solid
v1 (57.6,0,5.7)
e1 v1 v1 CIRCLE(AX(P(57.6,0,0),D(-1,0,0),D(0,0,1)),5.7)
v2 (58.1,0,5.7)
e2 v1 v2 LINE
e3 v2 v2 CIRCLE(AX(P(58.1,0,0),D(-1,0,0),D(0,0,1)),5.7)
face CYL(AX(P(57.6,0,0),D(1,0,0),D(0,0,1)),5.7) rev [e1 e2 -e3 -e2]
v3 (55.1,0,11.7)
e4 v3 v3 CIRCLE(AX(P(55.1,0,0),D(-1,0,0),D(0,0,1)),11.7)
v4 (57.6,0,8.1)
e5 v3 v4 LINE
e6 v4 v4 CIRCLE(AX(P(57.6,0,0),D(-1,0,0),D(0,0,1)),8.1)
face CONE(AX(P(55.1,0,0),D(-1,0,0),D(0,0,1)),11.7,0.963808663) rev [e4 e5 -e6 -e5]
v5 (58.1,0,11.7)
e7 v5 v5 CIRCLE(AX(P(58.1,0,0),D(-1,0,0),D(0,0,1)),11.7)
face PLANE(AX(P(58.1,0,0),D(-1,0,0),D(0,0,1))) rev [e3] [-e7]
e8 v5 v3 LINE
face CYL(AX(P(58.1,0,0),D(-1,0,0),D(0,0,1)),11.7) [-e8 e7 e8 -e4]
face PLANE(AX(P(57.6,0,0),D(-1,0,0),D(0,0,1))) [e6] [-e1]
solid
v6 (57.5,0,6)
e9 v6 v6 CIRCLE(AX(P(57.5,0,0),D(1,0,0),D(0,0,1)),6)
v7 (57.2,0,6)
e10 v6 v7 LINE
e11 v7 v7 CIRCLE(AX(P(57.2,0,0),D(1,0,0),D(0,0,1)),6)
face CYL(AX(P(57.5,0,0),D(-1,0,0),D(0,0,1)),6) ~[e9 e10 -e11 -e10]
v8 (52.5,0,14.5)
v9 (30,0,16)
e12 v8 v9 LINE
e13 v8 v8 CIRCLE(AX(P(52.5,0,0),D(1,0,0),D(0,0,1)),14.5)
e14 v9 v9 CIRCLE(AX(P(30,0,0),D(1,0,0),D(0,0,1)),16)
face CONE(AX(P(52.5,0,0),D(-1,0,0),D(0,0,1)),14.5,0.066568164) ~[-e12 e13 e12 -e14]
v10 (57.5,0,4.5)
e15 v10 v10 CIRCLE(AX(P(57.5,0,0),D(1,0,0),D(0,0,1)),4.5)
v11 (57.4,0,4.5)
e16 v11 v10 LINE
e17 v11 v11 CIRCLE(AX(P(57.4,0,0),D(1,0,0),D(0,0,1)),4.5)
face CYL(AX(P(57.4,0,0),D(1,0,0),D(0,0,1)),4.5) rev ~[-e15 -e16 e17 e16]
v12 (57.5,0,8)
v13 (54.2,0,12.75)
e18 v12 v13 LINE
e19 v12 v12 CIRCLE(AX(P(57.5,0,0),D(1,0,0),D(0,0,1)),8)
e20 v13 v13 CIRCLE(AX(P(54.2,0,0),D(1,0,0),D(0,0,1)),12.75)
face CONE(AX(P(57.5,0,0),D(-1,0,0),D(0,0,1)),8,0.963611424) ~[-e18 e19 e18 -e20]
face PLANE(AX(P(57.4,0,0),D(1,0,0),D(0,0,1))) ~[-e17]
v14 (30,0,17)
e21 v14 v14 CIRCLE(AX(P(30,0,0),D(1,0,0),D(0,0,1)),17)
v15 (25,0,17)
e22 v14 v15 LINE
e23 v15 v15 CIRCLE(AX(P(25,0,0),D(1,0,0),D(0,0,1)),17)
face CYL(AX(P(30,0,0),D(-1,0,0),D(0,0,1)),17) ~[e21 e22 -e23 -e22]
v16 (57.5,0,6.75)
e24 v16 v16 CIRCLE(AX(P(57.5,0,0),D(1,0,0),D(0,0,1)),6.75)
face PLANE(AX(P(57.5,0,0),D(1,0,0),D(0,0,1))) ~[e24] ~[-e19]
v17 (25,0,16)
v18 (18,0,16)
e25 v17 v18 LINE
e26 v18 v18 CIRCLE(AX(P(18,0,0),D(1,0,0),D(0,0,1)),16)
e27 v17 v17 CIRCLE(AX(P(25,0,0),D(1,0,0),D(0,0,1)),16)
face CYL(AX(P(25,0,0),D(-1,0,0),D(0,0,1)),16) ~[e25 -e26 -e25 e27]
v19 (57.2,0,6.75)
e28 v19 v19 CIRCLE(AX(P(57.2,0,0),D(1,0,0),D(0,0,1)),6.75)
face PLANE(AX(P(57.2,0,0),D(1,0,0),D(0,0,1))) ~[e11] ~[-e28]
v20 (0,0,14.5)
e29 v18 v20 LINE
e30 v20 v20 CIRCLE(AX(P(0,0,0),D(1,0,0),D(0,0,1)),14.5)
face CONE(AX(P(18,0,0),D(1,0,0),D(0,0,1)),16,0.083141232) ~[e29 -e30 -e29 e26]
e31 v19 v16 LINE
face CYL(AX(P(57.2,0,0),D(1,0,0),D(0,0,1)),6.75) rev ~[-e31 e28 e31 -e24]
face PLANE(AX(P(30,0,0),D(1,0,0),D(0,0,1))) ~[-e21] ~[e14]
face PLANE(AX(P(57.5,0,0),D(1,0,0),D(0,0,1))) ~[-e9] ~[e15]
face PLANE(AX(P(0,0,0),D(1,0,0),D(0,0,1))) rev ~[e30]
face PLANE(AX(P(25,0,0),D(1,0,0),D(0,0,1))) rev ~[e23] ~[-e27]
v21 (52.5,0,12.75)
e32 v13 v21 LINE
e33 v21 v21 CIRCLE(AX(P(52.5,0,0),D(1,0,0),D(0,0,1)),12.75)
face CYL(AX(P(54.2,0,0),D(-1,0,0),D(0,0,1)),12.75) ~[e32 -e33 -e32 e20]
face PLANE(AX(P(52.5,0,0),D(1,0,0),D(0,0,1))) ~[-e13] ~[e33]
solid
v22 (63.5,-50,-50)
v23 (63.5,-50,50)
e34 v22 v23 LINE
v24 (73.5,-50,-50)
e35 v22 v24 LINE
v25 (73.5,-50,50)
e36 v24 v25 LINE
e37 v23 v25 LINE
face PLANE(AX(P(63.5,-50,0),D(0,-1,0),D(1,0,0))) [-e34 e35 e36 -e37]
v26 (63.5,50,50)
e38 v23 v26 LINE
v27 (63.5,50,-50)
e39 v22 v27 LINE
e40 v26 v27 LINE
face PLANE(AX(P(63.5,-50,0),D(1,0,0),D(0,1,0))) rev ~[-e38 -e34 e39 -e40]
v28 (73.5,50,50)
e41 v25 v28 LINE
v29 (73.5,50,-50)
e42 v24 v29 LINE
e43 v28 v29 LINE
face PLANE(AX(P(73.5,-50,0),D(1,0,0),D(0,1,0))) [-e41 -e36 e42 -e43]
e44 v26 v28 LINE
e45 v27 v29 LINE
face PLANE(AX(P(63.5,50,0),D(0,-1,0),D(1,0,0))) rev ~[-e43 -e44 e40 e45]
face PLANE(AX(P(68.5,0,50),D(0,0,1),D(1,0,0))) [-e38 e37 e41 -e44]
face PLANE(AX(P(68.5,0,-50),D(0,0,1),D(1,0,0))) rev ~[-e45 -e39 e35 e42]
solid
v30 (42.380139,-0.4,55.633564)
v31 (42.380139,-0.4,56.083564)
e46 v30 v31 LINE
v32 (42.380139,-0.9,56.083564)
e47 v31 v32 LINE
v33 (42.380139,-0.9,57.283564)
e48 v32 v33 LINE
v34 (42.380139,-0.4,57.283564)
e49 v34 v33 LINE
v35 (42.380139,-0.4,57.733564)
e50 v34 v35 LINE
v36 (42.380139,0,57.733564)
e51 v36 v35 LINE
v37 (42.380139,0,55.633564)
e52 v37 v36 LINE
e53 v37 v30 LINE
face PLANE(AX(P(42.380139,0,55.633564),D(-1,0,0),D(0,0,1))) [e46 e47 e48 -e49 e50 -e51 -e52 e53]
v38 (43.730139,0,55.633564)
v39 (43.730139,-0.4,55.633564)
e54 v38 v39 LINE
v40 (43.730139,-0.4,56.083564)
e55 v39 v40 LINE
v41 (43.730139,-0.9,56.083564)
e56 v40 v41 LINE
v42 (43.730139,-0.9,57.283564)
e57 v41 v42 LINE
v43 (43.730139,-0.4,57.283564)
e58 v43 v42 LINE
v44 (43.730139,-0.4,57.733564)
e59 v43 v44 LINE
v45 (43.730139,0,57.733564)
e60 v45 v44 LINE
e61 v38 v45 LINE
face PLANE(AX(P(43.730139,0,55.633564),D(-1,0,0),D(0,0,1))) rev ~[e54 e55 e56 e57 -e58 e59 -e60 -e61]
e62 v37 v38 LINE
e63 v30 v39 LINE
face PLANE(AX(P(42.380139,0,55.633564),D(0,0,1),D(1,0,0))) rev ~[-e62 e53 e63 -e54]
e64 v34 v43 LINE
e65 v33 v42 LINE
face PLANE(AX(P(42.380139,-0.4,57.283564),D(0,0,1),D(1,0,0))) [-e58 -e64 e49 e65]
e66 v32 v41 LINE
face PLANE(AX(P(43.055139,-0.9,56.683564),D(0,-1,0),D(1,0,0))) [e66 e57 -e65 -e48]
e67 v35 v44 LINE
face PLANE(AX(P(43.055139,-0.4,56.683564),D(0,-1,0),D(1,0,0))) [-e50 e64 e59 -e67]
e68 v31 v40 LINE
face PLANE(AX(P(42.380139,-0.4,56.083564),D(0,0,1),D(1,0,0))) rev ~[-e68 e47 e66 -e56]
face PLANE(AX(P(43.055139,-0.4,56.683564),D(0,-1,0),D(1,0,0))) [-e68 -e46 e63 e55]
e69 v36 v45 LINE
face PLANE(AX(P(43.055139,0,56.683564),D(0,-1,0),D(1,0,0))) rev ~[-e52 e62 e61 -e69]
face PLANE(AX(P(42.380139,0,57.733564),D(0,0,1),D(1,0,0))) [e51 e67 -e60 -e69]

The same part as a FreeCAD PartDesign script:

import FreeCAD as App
import Part
import Sketcher

V = App.Vector
Q = App.Units.Quantity


def add_polygon(sketch, points):
    """Adds a closed chain of lines whose ends are joined by coincident constraints."""
    first, n = sketch.GeometryCount, len(points)
    for a, b in zip(points, points[1:] + points[:1]):
        sketch.addGeometry(Part.LineSegment(App.Vector(*a, 0), App.Vector(*b, 0)), False)
    for i in range(n):
        sketch.addConstraint(Sketcher.Constraint("Coincident", first + i, 2, first + (i + 1) % n, 1))

doc = App.newDocument("Part")
body = doc.addObject("PartDesign::Body", "Body")

sketch1 = body.newObject("Sketcher::SketchObject", "Sketch")
sketch1.AttachmentSupport = (doc.getObject("XZ_Plane"), [""])
sketch1.MapMode = "FlatFace"
add_polygon(sketch1, [(0, 14.5), (0, 0), (57.4, 0), (57.4, 4.5), (57.5, 4.5), (57.5, 6), (57.2, 6), (57.2, 6.75), (57.5, 6.75), (57.5, 8), (54.2, 12.75), (52.5, 12.75), (52.5, 14.5), (30, 16), (30, 17), (25, 17), (25, 16), (18, 16)])
sketch1.addConstraint([
    Sketcher.Constraint("Vertical", 0),
    Sketcher.Constraint("Horizontal", 1),
    Sketcher.Constraint("Vertical", 2),
    Sketcher.Constraint("Horizontal", 3),
    Sketcher.Constraint("Vertical", 4),
    Sketcher.Constraint("Horizontal", 5),
    Sketcher.Constraint("Vertical", 6),
    Sketcher.Constraint("Horizontal", 7),
    Sketcher.Constraint("Vertical", 8),
    Sketcher.Constraint("Horizontal", 10),
    Sketcher.Constraint("Vertical", 11),
    Sketcher.Constraint("Vertical", 13),
    Sketcher.Constraint("Horizontal", 14),
    Sketcher.Constraint("Vertical", 15),
    Sketcher.Constraint("Horizontal", 16),
    Sketcher.Constraint("Coincident", 0, 2, -1, 1),
    Sketcher.Constraint("Horizontal", 12, 2, 15, 2),
    Sketcher.Constraint("Horizontal", 11, 2, 17, 2),
    Sketcher.Constraint("Vertical", 4, 2, 7, 2),
    Sketcher.Constraint("DistanceX", 14, 2, 14, 1, Q("5 mm")),
    Sketcher.Constraint("DistanceX", 16, 2, 16, 1, Q("7 mm")),
    Sketcher.Constraint("DistanceY", 13, 1, 13, 2, Q("1 mm")),
    Sketcher.Constraint("DistanceX", 1, 1, 1, 2, Q("57.4 mm")),
    Sketcher.Constraint("DistanceX", 3, 1, 3, 2, Q("0.1 mm")),
    Sketcher.Constraint("DistanceX", 5, 2, 5, 1, Q("0.3 mm")),
    Sketcher.Constraint("DistanceX", 10, 2, 10, 1, Q("1.7 mm")),
    Sketcher.Constraint("DistanceY", 0, 2, 0, 1, Q("14.5 mm")),
    Sketcher.Constraint("DistanceY", 2, 1, 2, 2, Q("4.5 mm")),
    Sketcher.Constraint("DistanceY", 4, 1, 4, 2, Q("1.5 mm")),
    Sketcher.Constraint("DistanceY", -1, 1, 8, 2, Q("8 mm")),
    Sketcher.Constraint("DistanceX", -1, 1, 12, 2, Q("30 mm")),
    Sketcher.Constraint("DistanceY", -1, 1, 12, 2, Q("16 mm")),
    Sketcher.Constraint("DistanceX", 9, 2, 6, 2, Q("3 mm")),
    Sketcher.Constraint("DistanceY", 6, 2, 9, 2, Q("6 mm")),
    Sketcher.Constraint("DistanceY", 6, 1, 6, 2, Q("0.75 mm")),
])
revolution = body.newObject("PartDesign::Revolution", "Revolution")
revolution.Profile = sketch1
revolution.ReferenceAxis = (sketch1, ["H_Axis"])
revolution.Angle = 360
body2 = doc.addObject("PartDesign::Body", "Body001")

sketch2 = body2.newObject("Sketcher::SketchObject", "Sketch001")
sketch2.AttachmentSupport = (doc.getObject("XY_Plane001"), [""])
sketch2.MapMode = "FlatFace"
add_polygon(sketch2, [(64, 50), (64, -50), (74, -50), (74, 50)])
sketch2.addConstraint([
    Sketcher.Constraint("Vertical", 0),
    Sketcher.Constraint("Horizontal", 1),
    Sketcher.Constraint("Vertical", 2),
    Sketcher.Constraint("Horizontal", 3),
    Sketcher.Constraint("DistanceX", 1, 1, 1, 2, Q("10 mm")),
    Sketcher.Constraint("DistanceY", 0, 2, 0, 1, Q("100 mm")),
    Sketcher.Constraint("DistanceY", 0, 2, -1, 1, Q("50 mm")),
    Sketcher.Constraint("DistanceX", -1, 1, 0, 2, Q("63.5 mm")),
])
pad1 = body2.newObject("PartDesign::Pad", "Pad")
pad1.Profile = sketch2
pad1.Length = 100
pad1.Midplane = True
body3 = doc.addObject("PartDesign::Body", "Body002")

sketch3 = body3.newObject("Sketcher::SketchObject", "Sketch002")
sketch3.AttachmentSupport = (doc.getObject("XZ_Plane002"), [""])
sketch3.MapMode = "FlatFace"
add_polygon(sketch3, [(57.6, 8.1), (57.6, 5.7), (58.1, 5.7), (58.1, 11.7), (55.1, 11.7)])
sketch3.addConstraint([
    Sketcher.Constraint("Vertical", 0),
    Sketcher.Constraint("Horizontal", 1),
    Sketcher.Constraint("Vertical", 2),
    Sketcher.Constraint("Horizontal", 3),
    Sketcher.Constraint("DistanceX", 3, 2, 3, 1, Q("3 mm")),
    Sketcher.Constraint("DistanceY", 2, 1, 2, 2, Q("6 mm")),
    Sketcher.Constraint("DistanceX", 1, 1, 1, 2, Q("0.5 mm")),
    Sketcher.Constraint("DistanceY", 0, 2, 0, 1, Q("2.4 mm")),
    Sketcher.Constraint("DistanceX", -1, 1, 0, 2, Q("57.6 mm")),
    Sketcher.Constraint("DistanceY", -1, 1, 0, 2, Q("5.7 mm")),
])
revolution2 = body3.newObject("PartDesign::Revolution", "Revolution001")
revolution2.Profile = sketch3
revolution2.ReferenceAxis = (sketch3, ["H_Axis"])
revolution2.Angle = 360
body4 = doc.addObject("PartDesign::Body", "Body003")

sketch4 = body4.newObject("Sketcher::SketchObject", "Sketch003")
sketch4.AttachmentSupport = (doc.getObject("XZ_Plane003"), [""])
sketch4.MapMode = "FlatFace"
add_polygon(sketch4, [(42.4, 57.7), (42.4, 55.6), (43.7, 55.6), (43.7, 57.7)])
sketch4.addConstraint([
    Sketcher.Constraint("Vertical", 0),
    Sketcher.Constraint("Horizontal", 1),
    Sketcher.Constraint("Vertical", 2),
    Sketcher.Constraint("Horizontal", 3),
    Sketcher.Constraint("DistanceY", 0, 2, 0, 1, Q("2.1 mm")),
    Sketcher.Constraint("DistanceX", 1, 1, 1, 2, Q("1.35 mm")),
    Sketcher.Constraint("DistanceX", -1, 1, 0, 2, Q("42.380139 mm")),
    Sketcher.Constraint("DistanceY", -1, 1, 0, 2, Q("55.633564 mm")),
])
pad2 = body4.newObject("PartDesign::Pad", "Pad001")
pad2.Profile = sketch4
pad2.Length = 0.4

sketch5 = body4.newObject("Sketcher::SketchObject", "Sketch004")
sketch5.AttachmentSupport = (doc.getObject("XZ_Plane003"), [""])
sketch5.MapMode = "FlatFace"
sketch5.AttachmentOffset = App.Placement(V(0, 0, 0.4), App.Rotation())
add_polygon(sketch5, [(42.4, 57.3), (42.4, 56.1), (43.7, 56.1), (43.7, 57.3)])
sketch5.addConstraint([
    Sketcher.Constraint("Vertical", 0),
    Sketcher.Constraint("Horizontal", 1),
    Sketcher.Constraint("Vertical", 2),
    Sketcher.Constraint("Horizontal", 3),
    Sketcher.Constraint("DistanceY", 0, 2, 0, 1, Q("1.2 mm")),
    Sketcher.Constraint("DistanceX", 1, 1, 1, 2, Q("1.35 mm")),
    Sketcher.Constraint("DistanceX", -1, 1, 0, 2, Q("42.380139 mm")),
    Sketcher.Constraint("DistanceY", -1, 1, 0, 2, Q("56.083564 mm")),
])
pad3 = body4.newObject("PartDesign::Pad", "Pad002")
pad3.Profile = sketch5
pad3.Length = 0.5

doc.recompute()
